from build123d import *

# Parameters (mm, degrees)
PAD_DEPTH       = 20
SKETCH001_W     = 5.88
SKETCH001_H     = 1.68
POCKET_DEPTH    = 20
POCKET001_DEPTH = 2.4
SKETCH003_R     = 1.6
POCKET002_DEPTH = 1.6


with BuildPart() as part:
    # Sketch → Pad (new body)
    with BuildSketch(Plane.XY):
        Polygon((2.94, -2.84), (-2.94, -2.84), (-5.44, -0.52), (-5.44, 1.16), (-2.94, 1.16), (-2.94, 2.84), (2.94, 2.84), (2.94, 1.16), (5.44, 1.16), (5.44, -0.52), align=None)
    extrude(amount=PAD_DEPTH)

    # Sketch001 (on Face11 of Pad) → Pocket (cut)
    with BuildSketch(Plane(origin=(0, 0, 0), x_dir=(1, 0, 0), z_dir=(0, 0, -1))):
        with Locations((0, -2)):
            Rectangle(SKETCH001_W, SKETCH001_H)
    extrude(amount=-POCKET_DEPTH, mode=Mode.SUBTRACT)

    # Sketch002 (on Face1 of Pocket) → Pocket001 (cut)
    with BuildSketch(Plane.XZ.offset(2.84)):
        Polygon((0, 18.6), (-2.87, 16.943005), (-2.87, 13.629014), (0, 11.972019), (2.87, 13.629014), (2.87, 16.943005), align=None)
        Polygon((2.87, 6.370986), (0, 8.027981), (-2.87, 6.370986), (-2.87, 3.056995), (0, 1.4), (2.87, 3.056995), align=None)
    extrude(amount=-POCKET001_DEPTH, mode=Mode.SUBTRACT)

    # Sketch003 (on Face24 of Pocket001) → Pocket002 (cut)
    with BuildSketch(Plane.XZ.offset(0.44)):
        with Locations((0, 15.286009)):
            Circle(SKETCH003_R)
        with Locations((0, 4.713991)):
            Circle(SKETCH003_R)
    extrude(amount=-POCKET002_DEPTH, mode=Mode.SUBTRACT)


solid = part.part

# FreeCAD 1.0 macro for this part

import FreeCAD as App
import Part
import Sketcher

V = App.Vector
Q = App.Units.Quantity

doc = App.newDocument("Part")
body = doc.addObject("PartDesign::Body", "Body")

sketch1 = body.newObject("Sketcher::SketchObject", "Sketch")
sketch1.AttachmentSupport = (doc.getObject("XY_Plane"), [""])
sketch1.MapMode = "FlatFace"
sketch1.addGeometry([
    Part.LineSegment(V(-2.9, -2.8, 0), V(2.9, -2.8, 0)),
    Part.LineSegment(V(2.9, -2.8, 0), V(5.4, -0.5, 0)),
    Part.LineSegment(V(5.4, -0.5, 0), V(5.4, 1.2, 0)),
    Part.LineSegment(V(5.4, 1.2, 0), V(2.9, 1.2, 0)),
    Part.LineSegment(V(2.9, 1.2, 0), V(2.9, 2.8, 0)),
    Part.LineSegment(V(2.9, 2.8, 0), V(-2.9, 2.8, 0)),
    Part.LineSegment(V(-2.9, 2.8, 0), V(-2.9, 1.2, 0)),
    Part.LineSegment(V(-2.9, 1.2, 0), V(-5.4, 1.2, 0)),
    Part.LineSegment(V(-5.4, 1.2, 0), V(-5.4, -0.5, 0)),
    Part.LineSegment(V(-5.4, -0.5, 0), V(-2.9, -2.8, 0)),
], False)
sketch1.addConstraint([
    Sketcher.Constraint("Coincident", 0, 2, 1, 1),
    Sketcher.Constraint("Coincident", 1, 2, 2, 1),
    Sketcher.Constraint("Coincident", 2, 2, 3, 1),
    Sketcher.Constraint("Coincident", 3, 2, 4, 1),
    Sketcher.Constraint("Coincident", 4, 2, 5, 1),
    Sketcher.Constraint("Coincident", 5, 2, 6, 1),
    Sketcher.Constraint("Coincident", 6, 2, 7, 1),
    Sketcher.Constraint("Coincident", 7, 2, 8, 1),
    Sketcher.Constraint("Coincident", 8, 2, 9, 1),
    Sketcher.Constraint("Coincident", 9, 2, 0, 1),
    Sketcher.Constraint("Horizontal", 0),
    Sketcher.Constraint("Vertical", 2),
    Sketcher.Constraint("Horizontal", 3),
    Sketcher.Constraint("Vertical", 4),
    Sketcher.Constraint("Horizontal", 5),
    Sketcher.Constraint("Vertical", 6),
    Sketcher.Constraint("Horizontal", 7),
    Sketcher.Constraint("Vertical", 8),
    Sketcher.Constraint("Symmetric", 0, 2, 5, 2, -1, 1),
    Sketcher.Constraint("Symmetric", 3, 2, 6, 2, -2),
    Sketcher.Constraint("Symmetric", 1, 2, 8, 2, -2),
    Sketcher.Constraint("Vertical", 6, 2, 9, 2),
    Sketcher.Constraint("Equal", 2, 4),
    Sketcher.Constraint("DistanceX", 3, 2, 3, 1, 2.5),
    Sketcher.Constraint("DistanceY", 0, 2, 2, 2, 4.0),
    Sketcher.Constraint("DistanceX", 0, 1, 0, 2, 5.88),
    Sketcher.Constraint("DistanceY", 2, 1, 2, 2, 1.68),
])
pad1 = body.newObject("PartDesign::Pad", "Pad")
pad1.Profile = sketch1
pad1.Length = 20

sketch2 = body.newObject("Sketcher::SketchObject", "Sketch001")
sketch2.AttachmentSupport = (doc.getObject("XY_Plane"), [""])
sketch2.MapMode = "FlatFace"
sketch2.addGeometry([
    Part.LineSegment(V(-2.9, 1.2, 0), V(-2.9, 2.8, 0)),
    Part.LineSegment(V(-2.9, 2.8, 0), V(2.9, 2.8, 0)),
    Part.LineSegment(V(2.9, 2.8, 0), V(2.9, 1.2, 0)),
    Part.LineSegment(V(2.9, 1.2, 0), V(-2.9, 1.2, 0)),
], False)
sketch2.addConstraint([
    Sketcher.Constraint("Coincident", 0, 2, 1, 1),
    Sketcher.Constraint("Coincident", 1, 2, 2, 1),
    Sketcher.Constraint("Coincident", 2, 2, 3, 1),
    Sketcher.Constraint("Coincident", 3, 2, 0, 1),
    Sketcher.Constraint("Vertical", 0),
    Sketcher.Constraint("Horizontal", 1),
    Sketcher.Constraint("Vertical", 2),
    Sketcher.Constraint("Horizontal", 3),
    Sketcher.Constraint("DistanceX", 1, 1, 1, 2, 5.88),
    Sketcher.Constraint("DistanceY", 0, 1, 0, 2, 1.68),
    Sketcher.Constraint("DistanceX", 0, 2, -1, 1, 2.94),
    Sketcher.Constraint("DistanceY", -1, 1, 0, 2, 2.84),
])
pocket1 = body.newObject("PartDesign::Pocket", "Pocket")
pocket1.Profile = sketch2
pocket1.Length = 20
pocket1.Reversed = True

sketch3 = body.newObject("Sketcher::SketchObject", "Sketch002")
sketch3.AttachmentSupport = (doc.getObject("XZ_Plane"), [""])
sketch3.MapMode = "FlatFace"
sketch3.AttachmentOffset = App.Placement(V(0, 0, 2.84), App.Rotation())
sketch3.addGeometry([
    Part.LineSegment(V(0, 18.6, 0), V(-2.9, 16.9, 0)),
    Part.LineSegment(V(-2.9, 16.9, 0), V(-2.9, 13.6, 0)),
    Part.LineSegment(V(-2.9, 13.6, 0), V(0, 12, 0)),
    Part.LineSegment(V(0, 12, 0), V(2.9, 13.6, 0)),
    Part.LineSegment(V(2.9, 13.6, 0), V(2.9, 16.9, 0)),
    Part.LineSegment(V(2.9, 16.9, 0), V(0, 18.6, 0)),
    Part.LineSegment(V(2.9, 6.4, 0), V(0, 8, 0)),
    Part.LineSegment(V(0, 8, 0), V(-2.9, 6.4, 0)),
    Part.LineSegment(V(-2.9, 6.4, 0), V(-2.9, 3.1, 0)),
    Part.LineSegment(V(-2.9, 3.1, 0), V(0, 1.4, 0)),
    Part.LineSegment(V(0, 1.4, 0), V(2.9, 3.1, 0)),
    Part.LineSegment(V(2.9, 3.1, 0), V(2.9, 6.4, 0)),
], False)
sketch3.addConstraint([
    Sketcher.Constraint("Coincident", 0, 2, 1, 1),
    Sketcher.Constraint("Coincident", 1, 2, 2, 1),
    Sketcher.Constraint("Coincident", 2, 2, 3, 1),
    Sketcher.Constraint("Coincident", 3, 2, 4, 1),
    Sketcher.Constraint("Coincident", 4, 2, 5, 1),
    Sketcher.Constraint("Coincident", 5, 2, 0, 1),
    Sketcher.Constraint("Coincident", 6, 2, 7, 1),
    Sketcher.Constraint("Coincident", 7, 2, 8, 1),
    Sketcher.Constraint("Coincident", 8, 2, 9, 1),
    Sketcher.Constraint("Coincident", 9, 2, 10, 1),
    Sketcher.Constraint("Coincident", 10, 2, 11, 1),
    Sketcher.Constraint("Coincident", 11, 2, 6, 1),
    Sketcher.Constraint("Vertical", 1),
    Sketcher.Constraint("Vertical", 4),
    Sketcher.Constraint("Vertical", 8),
    Sketcher.Constraint("Vertical", 11),
    Sketcher.Constraint("Symmetric", 1, 2, 3, 2, -2),
    Sketcher.Constraint("Symmetric", 8, 2, 10, 2, -2),
    Sketcher.Constraint("PointOnObject", 2, 2, -2),
    Sketcher.Constraint("PointOnObject", 5, 2, -2),
    Sketcher.Constraint("PointOnObject", 6, 2, -2),
    Sketcher.Constraint("PointOnObject", 9, 2, -2),
    Sketcher.Constraint("Parallel", 0, 3),
    Sketcher.Constraint("Parallel", 2, 5),
    Sketcher.Constraint("Parallel", 5, 6),
    Sketcher.Constraint("Parallel", 3, 7),
    Sketcher.Constraint("Parallel", 6, 9),
    Sketcher.Constraint("Vertical", 1, 2, 7, 2),
    Sketcher.Constraint("Equal", 4, 8),
    Sketcher.Constraint("Angle", 0, Q("-150.000004 deg")),
    Sketcher.Constraint("DistanceY", -1, 1, 5, 2, 18.6),
    Sketcher.Constraint("DistanceY", -1, 1, 9, 2, 1.4),
    Sketcher.Constraint("DistanceX", 0, 2, -1, 1, 2.87),
    Sketcher.Constraint("DistanceY", 1, 2, 1, 1, 3.313991),
])
pocket2 = body.newObject("PartDesign::Pocket", "Pocket001")
pocket2.Profile = sketch3
pocket2.Length = 2.4

sketch4 = body.newObject("Sketcher::SketchObject", "Sketch003")
sketch4.AttachmentSupport = (doc.getObject("XZ_Plane"), [""])
sketch4.MapMode = "FlatFace"
sketch4.AttachmentOffset = App.Placement(V(0, 0, 0.44), App.Rotation())
sketch4.addGeometry([
    Part.Circle(V(0, 15.3, 0), V(0, 0, 1), 1.6),
    Part.Circle(V(0, 4.7, 0), V(0, 0, 1), 1.6),
], False)
sketch4.addConstraint([
    Sketcher.Constraint("Equal", 0, 1),
    Sketcher.Constraint("PointOnObject", 0, 3, -2),
    Sketcher.Constraint("PointOnObject", 1, 3, -2),
    Sketcher.Constraint("Diameter", 0, 3.2),
    Sketcher.Constraint("DistanceY", -1, 1, 0, 3, 15.286009),
    Sketcher.Constraint("DistanceY", -1, 1, 1, 3, 4.713991),
])
pocket3 = body.newObject("PartDesign::Pocket", "Pocket002")
pocket3.Profile = sketch4
pocket3.Length = 1.6

doc.recompute()
